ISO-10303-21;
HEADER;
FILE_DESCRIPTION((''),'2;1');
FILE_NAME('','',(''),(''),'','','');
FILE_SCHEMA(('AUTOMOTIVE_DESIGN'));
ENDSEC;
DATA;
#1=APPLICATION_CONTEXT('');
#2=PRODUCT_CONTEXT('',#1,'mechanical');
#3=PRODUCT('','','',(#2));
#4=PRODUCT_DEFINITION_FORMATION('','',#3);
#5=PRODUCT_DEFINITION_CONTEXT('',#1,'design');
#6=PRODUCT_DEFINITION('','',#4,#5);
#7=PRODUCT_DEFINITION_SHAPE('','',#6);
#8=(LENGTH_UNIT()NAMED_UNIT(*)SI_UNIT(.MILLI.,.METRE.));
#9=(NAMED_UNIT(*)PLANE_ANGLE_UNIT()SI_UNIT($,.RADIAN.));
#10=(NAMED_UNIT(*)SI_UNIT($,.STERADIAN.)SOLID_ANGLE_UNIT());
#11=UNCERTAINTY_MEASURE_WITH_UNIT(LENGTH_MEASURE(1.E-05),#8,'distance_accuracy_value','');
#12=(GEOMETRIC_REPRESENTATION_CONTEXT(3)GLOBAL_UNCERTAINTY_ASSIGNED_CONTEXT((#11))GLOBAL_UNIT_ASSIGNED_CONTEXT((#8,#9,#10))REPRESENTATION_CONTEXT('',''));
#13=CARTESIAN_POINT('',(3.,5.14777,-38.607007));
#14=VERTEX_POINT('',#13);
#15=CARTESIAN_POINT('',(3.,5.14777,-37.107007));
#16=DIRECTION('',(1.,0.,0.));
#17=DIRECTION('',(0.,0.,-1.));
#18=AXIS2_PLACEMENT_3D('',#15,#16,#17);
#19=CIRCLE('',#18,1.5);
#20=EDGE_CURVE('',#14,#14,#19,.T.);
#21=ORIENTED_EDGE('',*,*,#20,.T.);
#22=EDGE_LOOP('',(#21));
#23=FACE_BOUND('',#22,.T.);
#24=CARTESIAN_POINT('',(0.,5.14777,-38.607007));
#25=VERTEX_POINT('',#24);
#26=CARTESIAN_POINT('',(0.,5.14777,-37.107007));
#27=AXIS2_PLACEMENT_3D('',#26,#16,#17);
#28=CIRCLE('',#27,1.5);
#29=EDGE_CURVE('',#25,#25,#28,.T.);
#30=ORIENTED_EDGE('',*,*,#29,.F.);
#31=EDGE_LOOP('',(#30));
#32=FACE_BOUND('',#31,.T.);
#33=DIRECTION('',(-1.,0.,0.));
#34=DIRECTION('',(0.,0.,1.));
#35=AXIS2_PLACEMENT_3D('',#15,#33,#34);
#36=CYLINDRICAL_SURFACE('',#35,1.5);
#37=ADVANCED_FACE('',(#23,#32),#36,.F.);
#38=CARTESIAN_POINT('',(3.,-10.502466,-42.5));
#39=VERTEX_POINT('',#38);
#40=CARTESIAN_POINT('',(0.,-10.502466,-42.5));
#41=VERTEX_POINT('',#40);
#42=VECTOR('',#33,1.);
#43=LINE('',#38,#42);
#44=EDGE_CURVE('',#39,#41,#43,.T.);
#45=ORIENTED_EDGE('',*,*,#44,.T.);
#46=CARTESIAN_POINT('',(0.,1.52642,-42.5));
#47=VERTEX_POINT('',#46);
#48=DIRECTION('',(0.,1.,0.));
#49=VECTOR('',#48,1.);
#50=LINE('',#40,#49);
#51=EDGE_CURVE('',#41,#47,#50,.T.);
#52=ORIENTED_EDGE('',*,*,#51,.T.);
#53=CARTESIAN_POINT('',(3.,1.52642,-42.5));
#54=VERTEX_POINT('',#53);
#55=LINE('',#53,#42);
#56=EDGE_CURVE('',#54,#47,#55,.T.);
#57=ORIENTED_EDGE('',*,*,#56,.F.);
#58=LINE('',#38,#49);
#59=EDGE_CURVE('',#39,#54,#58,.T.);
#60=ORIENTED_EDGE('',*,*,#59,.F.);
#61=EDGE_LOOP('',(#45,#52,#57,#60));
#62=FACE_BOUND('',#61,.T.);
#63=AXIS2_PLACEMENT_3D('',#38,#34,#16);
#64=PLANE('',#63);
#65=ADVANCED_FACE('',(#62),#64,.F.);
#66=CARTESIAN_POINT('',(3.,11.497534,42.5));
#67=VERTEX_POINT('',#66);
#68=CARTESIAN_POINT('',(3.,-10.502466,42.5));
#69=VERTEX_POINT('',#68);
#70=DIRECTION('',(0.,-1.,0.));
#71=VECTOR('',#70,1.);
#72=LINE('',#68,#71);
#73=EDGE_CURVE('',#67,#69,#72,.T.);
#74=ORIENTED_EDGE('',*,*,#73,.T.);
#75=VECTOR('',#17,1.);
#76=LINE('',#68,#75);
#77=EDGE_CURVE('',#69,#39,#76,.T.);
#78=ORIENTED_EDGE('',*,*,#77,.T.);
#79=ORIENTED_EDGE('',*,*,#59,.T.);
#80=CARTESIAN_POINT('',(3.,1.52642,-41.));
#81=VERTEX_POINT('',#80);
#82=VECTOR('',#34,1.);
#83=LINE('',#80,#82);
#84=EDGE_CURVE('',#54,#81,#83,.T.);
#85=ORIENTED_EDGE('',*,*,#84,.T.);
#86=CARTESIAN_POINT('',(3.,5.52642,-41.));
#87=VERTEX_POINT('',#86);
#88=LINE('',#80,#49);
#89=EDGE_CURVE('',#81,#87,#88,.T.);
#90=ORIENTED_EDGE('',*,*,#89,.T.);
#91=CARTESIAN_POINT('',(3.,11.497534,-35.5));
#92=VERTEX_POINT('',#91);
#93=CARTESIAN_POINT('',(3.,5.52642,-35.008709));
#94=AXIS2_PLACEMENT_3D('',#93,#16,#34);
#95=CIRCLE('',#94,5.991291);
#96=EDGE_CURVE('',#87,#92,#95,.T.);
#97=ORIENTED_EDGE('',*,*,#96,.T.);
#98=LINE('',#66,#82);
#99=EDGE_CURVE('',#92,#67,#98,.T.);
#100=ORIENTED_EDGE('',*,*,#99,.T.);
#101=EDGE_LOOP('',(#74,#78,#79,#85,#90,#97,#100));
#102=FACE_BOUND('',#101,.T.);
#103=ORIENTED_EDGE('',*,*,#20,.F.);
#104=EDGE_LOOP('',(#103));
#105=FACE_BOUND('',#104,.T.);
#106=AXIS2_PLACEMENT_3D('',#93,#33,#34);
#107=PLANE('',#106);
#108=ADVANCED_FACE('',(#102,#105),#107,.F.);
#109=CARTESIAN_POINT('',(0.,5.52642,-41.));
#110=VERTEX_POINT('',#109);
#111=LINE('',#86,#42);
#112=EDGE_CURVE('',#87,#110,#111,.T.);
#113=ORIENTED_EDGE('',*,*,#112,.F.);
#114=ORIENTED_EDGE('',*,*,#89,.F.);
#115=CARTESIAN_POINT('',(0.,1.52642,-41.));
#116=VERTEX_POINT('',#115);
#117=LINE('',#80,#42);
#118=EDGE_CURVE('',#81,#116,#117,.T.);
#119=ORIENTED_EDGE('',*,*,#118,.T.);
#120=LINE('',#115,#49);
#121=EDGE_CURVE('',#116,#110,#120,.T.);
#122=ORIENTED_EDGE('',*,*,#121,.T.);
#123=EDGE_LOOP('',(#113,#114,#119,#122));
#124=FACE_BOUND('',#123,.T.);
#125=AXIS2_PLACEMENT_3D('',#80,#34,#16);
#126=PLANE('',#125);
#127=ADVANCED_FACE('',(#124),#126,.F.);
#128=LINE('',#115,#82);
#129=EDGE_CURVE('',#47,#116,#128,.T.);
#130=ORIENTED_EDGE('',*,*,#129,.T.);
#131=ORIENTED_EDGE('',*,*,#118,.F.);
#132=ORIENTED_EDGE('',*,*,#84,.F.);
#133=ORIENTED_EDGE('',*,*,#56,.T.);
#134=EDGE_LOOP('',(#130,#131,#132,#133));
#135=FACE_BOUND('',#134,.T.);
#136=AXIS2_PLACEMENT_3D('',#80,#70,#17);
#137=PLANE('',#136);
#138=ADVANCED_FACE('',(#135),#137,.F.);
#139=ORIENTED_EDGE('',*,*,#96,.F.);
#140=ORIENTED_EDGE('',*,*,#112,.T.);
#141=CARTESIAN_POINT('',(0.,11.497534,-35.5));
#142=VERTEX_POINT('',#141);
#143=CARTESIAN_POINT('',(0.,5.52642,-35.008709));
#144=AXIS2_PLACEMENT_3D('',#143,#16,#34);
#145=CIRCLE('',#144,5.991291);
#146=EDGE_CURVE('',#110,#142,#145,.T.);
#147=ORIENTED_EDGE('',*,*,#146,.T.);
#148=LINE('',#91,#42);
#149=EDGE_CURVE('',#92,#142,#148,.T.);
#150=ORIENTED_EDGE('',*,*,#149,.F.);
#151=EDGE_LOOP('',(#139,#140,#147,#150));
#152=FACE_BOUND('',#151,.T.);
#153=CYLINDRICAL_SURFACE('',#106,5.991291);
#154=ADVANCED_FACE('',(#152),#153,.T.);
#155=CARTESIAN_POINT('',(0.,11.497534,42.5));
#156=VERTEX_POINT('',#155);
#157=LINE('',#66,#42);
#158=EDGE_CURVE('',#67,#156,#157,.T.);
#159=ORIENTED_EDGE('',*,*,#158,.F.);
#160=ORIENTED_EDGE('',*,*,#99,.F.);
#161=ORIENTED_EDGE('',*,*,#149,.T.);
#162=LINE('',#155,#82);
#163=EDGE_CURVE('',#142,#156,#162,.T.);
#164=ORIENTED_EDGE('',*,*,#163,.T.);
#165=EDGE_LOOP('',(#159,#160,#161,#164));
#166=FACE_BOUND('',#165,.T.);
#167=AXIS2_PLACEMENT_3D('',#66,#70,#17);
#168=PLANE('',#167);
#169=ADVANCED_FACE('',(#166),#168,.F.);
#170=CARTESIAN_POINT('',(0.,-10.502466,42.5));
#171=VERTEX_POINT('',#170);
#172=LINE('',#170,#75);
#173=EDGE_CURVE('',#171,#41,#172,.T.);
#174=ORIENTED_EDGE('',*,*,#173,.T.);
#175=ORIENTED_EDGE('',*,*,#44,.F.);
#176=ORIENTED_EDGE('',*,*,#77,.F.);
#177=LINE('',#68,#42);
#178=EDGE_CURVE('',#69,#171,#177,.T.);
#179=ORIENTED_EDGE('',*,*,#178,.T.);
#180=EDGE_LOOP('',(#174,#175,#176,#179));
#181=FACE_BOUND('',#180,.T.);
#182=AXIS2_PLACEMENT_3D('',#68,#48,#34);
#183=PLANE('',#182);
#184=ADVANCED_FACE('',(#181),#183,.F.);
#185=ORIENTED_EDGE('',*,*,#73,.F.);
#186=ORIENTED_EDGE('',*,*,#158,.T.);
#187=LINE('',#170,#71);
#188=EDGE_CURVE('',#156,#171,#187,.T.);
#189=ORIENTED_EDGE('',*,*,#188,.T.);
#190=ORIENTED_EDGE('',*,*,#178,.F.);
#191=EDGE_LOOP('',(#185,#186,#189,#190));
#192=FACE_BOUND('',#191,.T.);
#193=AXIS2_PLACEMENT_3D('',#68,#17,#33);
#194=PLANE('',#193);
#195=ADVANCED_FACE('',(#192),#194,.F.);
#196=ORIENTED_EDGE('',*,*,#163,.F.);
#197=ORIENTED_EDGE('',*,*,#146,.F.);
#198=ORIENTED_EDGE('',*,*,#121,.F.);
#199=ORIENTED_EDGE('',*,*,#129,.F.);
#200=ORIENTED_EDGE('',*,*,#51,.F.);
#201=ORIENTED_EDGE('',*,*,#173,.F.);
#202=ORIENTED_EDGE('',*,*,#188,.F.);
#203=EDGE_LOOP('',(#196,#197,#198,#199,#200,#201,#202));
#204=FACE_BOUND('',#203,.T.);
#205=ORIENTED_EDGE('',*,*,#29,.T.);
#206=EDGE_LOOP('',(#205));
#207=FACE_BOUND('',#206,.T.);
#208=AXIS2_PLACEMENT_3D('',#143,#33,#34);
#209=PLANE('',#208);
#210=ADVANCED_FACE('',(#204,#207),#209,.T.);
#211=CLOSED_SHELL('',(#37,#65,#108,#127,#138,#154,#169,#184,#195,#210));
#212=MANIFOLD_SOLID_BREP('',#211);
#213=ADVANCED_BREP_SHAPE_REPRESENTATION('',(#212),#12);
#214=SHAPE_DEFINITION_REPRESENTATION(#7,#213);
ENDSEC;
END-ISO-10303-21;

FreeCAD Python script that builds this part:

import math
import FreeCAD as App
import Part
import Sketcher

doc = App.newDocument("Part")
params = doc.addObject("Spreadsheet::Sheet", "Params")
for row, (alias, value) in enumerate([
    ("sketch1_diameter", "3 mm"),
    ("sketch1_width", "4 mm"),
    ("sketch1_width2", "22 mm"),
    ("sketch1_height", "78 mm"),
    ("sketch1_height2", "85 mm"),
    ("pad1_length", "3 mm"),
], start=1):
    params.set(f"A{row}", alias)
    params.set(f"B{row}", "=" + value)
    params.setAlias(f"B{row}", alias)

body = doc.addObject("PartDesign::Body", "Body")

# Sketch on YZ plane
sketch1 = body.newObject("Sketcher::SketchObject", "Sketch")
sketch1.AttachmentSupport = (doc.getObject("YZ_Plane"), [""])
sketch1.MapMode = "FlatFace"
sketch1.addGeometry([
    Part.LineSegment(App.Vector(1.5, -42.5, 0), App.Vector(1.5, -41, 0)),  # 0
    Part.LineSegment(App.Vector(1.5, -41, 0), App.Vector(5.5, -41, 0)),  # 1
    Part.ArcOfCircle(Part.Circle(App.Vector(5.5, -35, 0), App.Vector(0, 0, 1), 6), math.radians(-90), math.radians(-5)),  # 2
    Part.LineSegment(App.Vector(11.5, -35.5, 0), App.Vector(11.5, 42.5, 0)),  # 3
    Part.LineSegment(App.Vector(11.5, 42.5, 0), App.Vector(-10.5, 42.5, 0)),  # 4
    Part.LineSegment(App.Vector(-10.5, 42.5, 0), App.Vector(-10.5, -42.5, 0)),  # 5
    Part.LineSegment(App.Vector(-10.5, -42.5, 0), App.Vector(1.5, -42.5, 0)),  # 6
    Part.Circle(App.Vector(5.1, -37.1, 0), App.Vector(0, 0, 1), 1.5),  # 7
], False)
sketch1.addConstraint([
    Sketcher.Constraint("Coincident", 0, 2, 1, 1),
    Sketcher.Constraint("Tangent", 1, 2, 2, 1),
    Sketcher.Constraint("Coincident", 2, 2, 3, 1),
    Sketcher.Constraint("Coincident", 3, 2, 4, 1),
    Sketcher.Constraint("Coincident", 4, 2, 5, 1),
    Sketcher.Constraint("Coincident", 5, 2, 6, 1),
    Sketcher.Constraint("Coincident", 6, 2, 0, 1),
    Sketcher.Constraint("Vertical", 0),
    Sketcher.Constraint("Horizontal", 1),
    Sketcher.Constraint("Vertical", 3),
    Sketcher.Constraint("Horizontal", 4),
    Sketcher.Constraint("Vertical", 5),
    Sketcher.Constraint("Horizontal", 6),
    Sketcher.Constraint("Diameter", 7, 3.0),
    Sketcher.Constraint("DistanceX", 1, 1, 1, 2, 4.0),
    Sketcher.Constraint("DistanceX", 4, 2, 4, 1, 22.0),
    Sketcher.Constraint("DistanceY", 3, 1, 3, 2, 78.0),
    Sketcher.Constraint("DistanceY", 5, 2, 5, 1, 85.0),
    Sketcher.Constraint("DistanceY", 0, 1, 0, 2, 1.5),
    Sketcher.Constraint("DistanceY", 0, 2, -1, 1, 41.0),
    Sketcher.Constraint("Radius", 2, 5.991291),
    Sketcher.Constraint("DistanceX", -1, 1, 2, 3, 5.52642),
    Sketcher.Constraint("DistanceX", -1, 1, 7, 3, 5.14777),
    Sketcher.Constraint("DistanceY", 7, 3, -1, 1, 37.107007),
])
sketch1.setExpression("Constraints[13]", "Params.sketch1_diameter")
sketch1.setExpression("Constraints[14]", "Params.sketch1_width")
sketch1.setExpression("Constraints[15]", "Params.sketch1_width2")
sketch1.setExpression("Constraints[16]", "Params.sketch1_height")
sketch1.setExpression("Constraints[17]", "Params.sketch1_height2")
pad1 = body.newObject("PartDesign::Pad", "Pad")
pad1.Profile = sketch1
pad1.setExpression("Length", "Params.pad1_length")

doc.recompute()
